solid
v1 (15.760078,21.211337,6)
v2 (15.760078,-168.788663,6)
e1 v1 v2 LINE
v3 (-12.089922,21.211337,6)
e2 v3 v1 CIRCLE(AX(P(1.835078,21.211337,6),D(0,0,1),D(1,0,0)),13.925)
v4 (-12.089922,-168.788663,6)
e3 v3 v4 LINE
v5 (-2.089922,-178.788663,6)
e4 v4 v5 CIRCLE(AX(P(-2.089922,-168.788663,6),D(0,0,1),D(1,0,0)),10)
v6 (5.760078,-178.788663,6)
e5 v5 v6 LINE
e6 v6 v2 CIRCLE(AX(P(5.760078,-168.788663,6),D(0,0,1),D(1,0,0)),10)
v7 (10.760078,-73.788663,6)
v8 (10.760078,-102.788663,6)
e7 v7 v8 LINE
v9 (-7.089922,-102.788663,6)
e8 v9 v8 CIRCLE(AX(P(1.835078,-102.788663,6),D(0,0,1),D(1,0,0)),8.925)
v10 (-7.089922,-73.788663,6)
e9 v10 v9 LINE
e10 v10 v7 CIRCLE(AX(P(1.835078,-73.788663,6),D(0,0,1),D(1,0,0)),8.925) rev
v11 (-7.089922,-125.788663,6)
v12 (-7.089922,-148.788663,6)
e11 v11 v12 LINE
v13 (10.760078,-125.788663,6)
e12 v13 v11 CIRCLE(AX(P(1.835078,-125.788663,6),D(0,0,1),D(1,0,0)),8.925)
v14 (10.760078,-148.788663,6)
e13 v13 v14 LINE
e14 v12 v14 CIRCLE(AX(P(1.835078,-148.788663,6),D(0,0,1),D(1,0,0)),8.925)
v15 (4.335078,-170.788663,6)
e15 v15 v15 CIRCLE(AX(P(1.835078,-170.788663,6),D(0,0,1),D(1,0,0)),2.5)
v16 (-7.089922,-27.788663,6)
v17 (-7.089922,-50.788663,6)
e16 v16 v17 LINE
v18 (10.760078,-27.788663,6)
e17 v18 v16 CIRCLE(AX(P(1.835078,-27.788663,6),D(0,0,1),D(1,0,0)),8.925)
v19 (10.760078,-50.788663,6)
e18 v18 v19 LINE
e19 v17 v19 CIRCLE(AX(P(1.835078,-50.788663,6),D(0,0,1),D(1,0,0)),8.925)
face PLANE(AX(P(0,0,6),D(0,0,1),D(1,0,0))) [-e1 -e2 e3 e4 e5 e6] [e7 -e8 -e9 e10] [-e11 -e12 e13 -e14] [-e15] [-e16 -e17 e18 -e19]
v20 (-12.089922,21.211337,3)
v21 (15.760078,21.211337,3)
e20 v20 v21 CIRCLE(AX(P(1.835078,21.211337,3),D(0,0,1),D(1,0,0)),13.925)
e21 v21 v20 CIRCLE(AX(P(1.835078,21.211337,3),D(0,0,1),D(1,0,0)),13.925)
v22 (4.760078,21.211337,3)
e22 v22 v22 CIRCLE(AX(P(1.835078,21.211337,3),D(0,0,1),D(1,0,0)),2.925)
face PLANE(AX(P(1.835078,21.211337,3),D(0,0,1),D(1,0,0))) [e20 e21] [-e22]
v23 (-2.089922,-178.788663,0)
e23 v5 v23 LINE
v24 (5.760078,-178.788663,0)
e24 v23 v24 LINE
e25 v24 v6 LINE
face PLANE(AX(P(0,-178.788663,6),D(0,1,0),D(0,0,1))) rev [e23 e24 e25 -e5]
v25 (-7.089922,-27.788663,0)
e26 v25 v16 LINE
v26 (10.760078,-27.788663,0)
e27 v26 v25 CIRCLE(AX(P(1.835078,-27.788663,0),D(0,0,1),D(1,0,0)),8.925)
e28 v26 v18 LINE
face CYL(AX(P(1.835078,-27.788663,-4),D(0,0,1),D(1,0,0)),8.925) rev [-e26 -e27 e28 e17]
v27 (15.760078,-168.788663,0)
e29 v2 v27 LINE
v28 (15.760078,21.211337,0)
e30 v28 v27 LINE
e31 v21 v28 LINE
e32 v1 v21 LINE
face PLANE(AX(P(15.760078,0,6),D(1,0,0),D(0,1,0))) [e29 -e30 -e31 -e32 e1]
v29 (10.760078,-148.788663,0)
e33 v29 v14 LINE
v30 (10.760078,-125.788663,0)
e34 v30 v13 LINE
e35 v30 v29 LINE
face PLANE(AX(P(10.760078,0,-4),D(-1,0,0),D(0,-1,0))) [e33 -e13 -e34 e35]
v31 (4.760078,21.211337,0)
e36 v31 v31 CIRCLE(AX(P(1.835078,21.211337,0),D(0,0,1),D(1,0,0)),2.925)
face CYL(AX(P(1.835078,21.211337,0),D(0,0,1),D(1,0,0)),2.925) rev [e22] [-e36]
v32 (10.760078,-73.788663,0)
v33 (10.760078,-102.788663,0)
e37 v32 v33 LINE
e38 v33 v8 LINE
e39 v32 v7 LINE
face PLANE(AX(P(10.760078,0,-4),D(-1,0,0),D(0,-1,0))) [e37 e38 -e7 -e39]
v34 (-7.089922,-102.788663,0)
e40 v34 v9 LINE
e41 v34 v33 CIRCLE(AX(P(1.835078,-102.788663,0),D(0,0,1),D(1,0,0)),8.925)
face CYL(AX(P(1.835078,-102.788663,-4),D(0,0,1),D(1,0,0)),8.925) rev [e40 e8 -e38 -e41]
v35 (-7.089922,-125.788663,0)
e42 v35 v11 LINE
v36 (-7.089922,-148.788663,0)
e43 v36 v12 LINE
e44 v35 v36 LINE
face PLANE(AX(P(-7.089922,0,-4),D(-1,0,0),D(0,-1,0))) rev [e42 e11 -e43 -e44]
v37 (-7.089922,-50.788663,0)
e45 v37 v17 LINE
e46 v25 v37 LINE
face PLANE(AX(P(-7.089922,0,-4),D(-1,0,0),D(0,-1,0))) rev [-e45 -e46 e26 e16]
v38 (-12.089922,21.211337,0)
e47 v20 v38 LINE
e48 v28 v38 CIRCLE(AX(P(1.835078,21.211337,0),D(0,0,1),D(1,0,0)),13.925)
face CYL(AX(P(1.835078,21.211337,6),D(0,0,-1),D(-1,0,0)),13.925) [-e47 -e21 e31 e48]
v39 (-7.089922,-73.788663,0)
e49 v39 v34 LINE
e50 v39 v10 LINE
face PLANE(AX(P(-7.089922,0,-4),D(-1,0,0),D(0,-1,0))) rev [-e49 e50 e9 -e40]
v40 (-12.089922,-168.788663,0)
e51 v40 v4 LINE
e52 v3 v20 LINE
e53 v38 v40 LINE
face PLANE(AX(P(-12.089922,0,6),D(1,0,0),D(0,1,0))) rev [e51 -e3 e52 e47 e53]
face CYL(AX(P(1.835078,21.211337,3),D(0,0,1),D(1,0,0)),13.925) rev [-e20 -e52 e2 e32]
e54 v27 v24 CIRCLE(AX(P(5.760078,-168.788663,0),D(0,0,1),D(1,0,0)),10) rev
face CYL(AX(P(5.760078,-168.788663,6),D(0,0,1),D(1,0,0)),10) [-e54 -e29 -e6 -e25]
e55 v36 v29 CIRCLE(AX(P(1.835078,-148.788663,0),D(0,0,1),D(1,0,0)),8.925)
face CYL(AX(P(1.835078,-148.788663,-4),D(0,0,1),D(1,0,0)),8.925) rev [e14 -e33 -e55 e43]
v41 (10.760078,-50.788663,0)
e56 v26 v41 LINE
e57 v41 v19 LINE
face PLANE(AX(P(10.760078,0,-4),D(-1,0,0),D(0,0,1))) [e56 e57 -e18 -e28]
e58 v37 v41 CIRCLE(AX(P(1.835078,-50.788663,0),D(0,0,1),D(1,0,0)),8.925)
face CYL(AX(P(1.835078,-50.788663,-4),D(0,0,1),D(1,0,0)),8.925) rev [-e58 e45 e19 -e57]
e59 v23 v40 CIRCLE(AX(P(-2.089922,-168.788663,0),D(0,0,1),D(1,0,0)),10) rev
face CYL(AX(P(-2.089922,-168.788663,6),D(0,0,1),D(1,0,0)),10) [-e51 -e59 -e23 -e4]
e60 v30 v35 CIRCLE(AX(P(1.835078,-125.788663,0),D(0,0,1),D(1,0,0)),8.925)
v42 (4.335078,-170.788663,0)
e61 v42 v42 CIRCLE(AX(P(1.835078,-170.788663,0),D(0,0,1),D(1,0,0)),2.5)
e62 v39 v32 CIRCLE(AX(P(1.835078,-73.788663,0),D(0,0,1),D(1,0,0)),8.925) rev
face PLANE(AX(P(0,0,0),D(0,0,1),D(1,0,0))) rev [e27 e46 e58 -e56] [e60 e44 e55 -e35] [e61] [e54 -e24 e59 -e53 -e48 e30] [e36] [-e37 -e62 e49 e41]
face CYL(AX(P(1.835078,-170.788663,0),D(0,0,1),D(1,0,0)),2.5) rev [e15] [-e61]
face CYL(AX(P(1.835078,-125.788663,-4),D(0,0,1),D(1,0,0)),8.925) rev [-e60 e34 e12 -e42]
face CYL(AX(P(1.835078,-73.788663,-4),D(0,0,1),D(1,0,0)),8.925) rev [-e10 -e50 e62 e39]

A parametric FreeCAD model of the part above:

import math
import FreeCAD as App
import Part
import Sketcher


def edges_at(feature, points):
    """Names of the edges that pass closest to the given points."""
    edges = feature.Shape.Edges
    near = lambda p: min(range(len(edges)), key=lambda i: edges[i].distToShape(Part.Vertex(*p))[0])
    return sorted({f"Edge{near(p) + 1}" for p in points})

doc = App.newDocument("Part")
params = doc.addObject("Spreadsheet::Sheet", "Params")
for row, (alias, value) in enumerate([
    ("sketch1_height", "200 mm"),
    ("pad1_length", "6 mm"),
    ("sketch2_diameter", "5 mm"),
    ("pocket1_length", "6 mm"),
    ("sketch3_diameter", "27.85 mm"),
    ("pocket2_length", "3 mm"),
    ("sketch4_diameter", "5.85 mm"),
    ("pocket3_length", "3 mm"),
    ("sketch5_height", "23 mm"),
    ("sketch5_height2", "29 mm"),
    ("pocket4_length", "10 mm"),
    ("fillet_radius", "10 mm"),
    ("fillet2_radius", "10 mm"),
], start=1):
    params.set(f"A{row}", alias)
    params.set(f"B{row}", "=" + value)
    params.setAlias(f"B{row}", alias)

body = doc.addObject("PartDesign::Body", "Body")

# Sketch on XY plane
sketch1 = body.newObject("Sketcher::SketchObject", "Sketch")
sketch1.AttachmentSupport = (doc.getObject("XY_Plane"), [""])
sketch1.MapMode = "FlatFace"
sketch1.addGeometry(Part.LineSegment(App.Vector(-12, 21, 0), App.Vector(-12, -179, 0)), False)
sketch1.addGeometry(Part.LineSegment(App.Vector(-12, -179, 0), App.Vector(16, -179, 0)), False)
sketch1.addGeometry(Part.LineSegment(App.Vector(16, -179, 0), App.Vector(16, 21, 0)), False)
sketch1.addGeometry(Part.ArcOfCircle(Part.Circle(App.Vector(2, 21, 0), App.Vector(0, 0, 1), 14), math.radians(0), math.radians(180)), False)
sketch1.addConstraint(Sketcher.Constraint("Coincident", 0, 2, 1, 1))
sketch1.addConstraint(Sketcher.Constraint("Coincident", 1, 2, 2, 1))
sketch1.addConstraint(Sketcher.Constraint("Tangent", 2, 2, 3, 1))
sketch1.addConstraint(Sketcher.Constraint("Tangent", 3, 2, 0, 1))
sketch1.addConstraint(Sketcher.Constraint("Vertical", 0))
sketch1.addConstraint(Sketcher.Constraint("Horizontal", 1))
sketch1.addConstraint(Sketcher.Constraint("Vertical", 2))
sketch1.addConstraint(Sketcher.Constraint("DistanceY", 0, 2, 0, 1, 200.0))
sketch1.addConstraint(Sketcher.Constraint("Radius", 3, 13.925))
sketch1.addConstraint(Sketcher.Constraint("DistanceX", -1, 1, 3, 3, 1.835078))
sketch1.addConstraint(Sketcher.Constraint("DistanceY", -1, 1, 3, 3, 21.211337))
sketch1.setExpression("Constraints[7]", "Params.sketch1_height")
pad1 = body.newObject("PartDesign::Pad", "Pad")
pad1.Profile = sketch1
pad1.setExpression("Length", "Params.pad1_length")

# Sketch on XY plane
sketch2 = body.newObject("Sketcher::SketchObject", "Sketch001")
sketch2.AttachmentSupport = (doc.getObject("XY_Plane"), [""])
sketch2.MapMode = "FlatFace"
sketch2.AttachmentOffset = App.Placement(App.Vector(0, 0, 6), App.Rotation())
sketch2.addGeometry(Part.Circle(App.Vector(1.8, -170.8, 0), App.Vector(0, 0, 1), 2.5), False)
sketch2.addConstraint(Sketcher.Constraint("Diameter", 0, 5.0))
sketch2.addConstraint(Sketcher.Constraint("DistanceX", -1, 1, 0, 3, 1.835078))
sketch2.addConstraint(Sketcher.Constraint("DistanceY", 0, 3, -1, 1, 170.788663))
sketch2.setExpression("Constraints[0]", "Params.sketch2_diameter")
pocket1 = body.newObject("PartDesign::Pocket", "Pocket")
pocket1.Profile = sketch2
pocket1.setExpression("Length", "Params.pocket1_length")

# Sketch on XY plane
sketch3 = body.newObject("Sketcher::SketchObject", "Sketch002")
sketch3.AttachmentSupport = (doc.getObject("XY_Plane"), [""])
sketch3.MapMode = "FlatFace"
sketch3.AttachmentOffset = App.Placement(App.Vector(0, 0, 6), App.Rotation())
sketch3.addGeometry(Part.Circle(App.Vector(2, 21, 0), App.Vector(0, 0, 1), 14), False)
sketch3.addConstraint(Sketcher.Constraint("Diameter", 0, 27.85))
sketch3.addConstraint(Sketcher.Constraint("DistanceX", -1, 1, 0, 3, 1.835078))
sketch3.addConstraint(Sketcher.Constraint("DistanceY", -1, 1, 0, 3, 21.211337))
sketch3.setExpression("Constraints[0]", "Params.sketch3_diameter")
pocket2 = body.newObject("PartDesign::Pocket", "Pocket001")
pocket2.Profile = sketch3
pocket2.setExpression("Length", "Params.pocket2_length")

# Sketch on XY plane
sketch4 = body.newObject("Sketcher::SketchObject", "Sketch003")
sketch4.AttachmentSupport = (doc.getObject("XY_Plane"), [""])
sketch4.MapMode = "FlatFace"
sketch4.AttachmentOffset = App.Placement(App.Vector(0, 0, 3), App.Rotation())
sketch4.addGeometry(Part.Circle(App.Vector(1.8, 21.2, 0), App.Vector(0, 0, 1), 2.9), False)
sketch4.addConstraint(Sketcher.Constraint("Diameter", 0, 5.85))
sketch4.addConstraint(Sketcher.Constraint("DistanceX", -1, 1, 0, 3, 1.835078))
sketch4.addConstraint(Sketcher.Constraint("DistanceY", -1, 1, 0, 3, 21.211337))
sketch4.setExpression("Constraints[0]", "Params.sketch4_diameter")
pocket3 = body.newObject("PartDesign::Pocket", "Pocket002")
pocket3.Profile = sketch4
pocket3.setExpression("Length", "Params.pocket3_length")

# Sketch on XY plane
sketch5 = body.newObject("Sketcher::SketchObject", "Sketch004")
sketch5.AttachmentSupport = (doc.getObject("XY_Plane"), [""])
sketch5.MapMode = "FlatFace"
sketch5.AttachmentOffset = App.Placement(App.Vector(0, 0, 6), App.Rotation())
sketch5.addGeometry(Part.ArcOfCircle(Part.Circle(App.Vector(2, -28, 0), App.Vector(0, 0, 1), 9), math.radians(0), math.radians(180)), False)
sketch5.addGeometry(Part.LineSegment(App.Vector(-7, -28, 0), App.Vector(-7, -51, 0)), False)
sketch5.addGeometry(Part.ArcOfCircle(Part.Circle(App.Vector(2, -51, 0), App.Vector(0, 0, 1), 9), math.radians(180), math.radians(360)), False)
sketch5.addGeometry(Part.LineSegment(App.Vector(11, -51, 0), App.Vector(11, -28, 0)), False)
sketch5.addGeometry(Part.ArcOfCircle(Part.Circle(App.Vector(2, -74, 0), App.Vector(0, 0, 1), 9), math.radians(0), math.radians(180)), False)
sketch5.addGeometry(Part.LineSegment(App.Vector(-7, -74, 0), App.Vector(-7, -103, 0)), False)
sketch5.addGeometry(Part.ArcOfCircle(Part.Circle(App.Vector(2, -103, 0), App.Vector(0, 0, 1), 9), math.radians(180), math.radians(360)), False)
sketch5.addGeometry(Part.LineSegment(App.Vector(11, -103, 0), App.Vector(11, -74, 0)), False)
sketch5.addGeometry(Part.ArcOfCircle(Part.Circle(App.Vector(2, -126, 0), App.Vector(0, 0, 1), 9), math.radians(0), math.radians(180)), False)
sketch5.addGeometry(Part.LineSegment(App.Vector(-7, -126, 0), App.Vector(-7, -149, 0)), False)
sketch5.addGeometry(Part.ArcOfCircle(Part.Circle(App.Vector(2, -149, 0), App.Vector(0, 0, 1), 9), math.radians(180), math.radians(360)), False)
sketch5.addGeometry(Part.LineSegment(App.Vector(11, -149, 0), App.Vector(11, -126, 0)), False)
sketch5.addConstraint(Sketcher.Constraint("Tangent", 0, 2, 1, 1))
sketch5.addConstraint(Sketcher.Constraint("Tangent", 1, 2, 2, 1))
sketch5.addConstraint(Sketcher.Constraint("Tangent", 2, 2, 3, 1))
sketch5.addConstraint(Sketcher.Constraint("Tangent", 3, 2, 0, 1))
sketch5.addConstraint(Sketcher.Constraint("Tangent", 4, 2, 5, 1))
sketch5.addConstraint(Sketcher.Constraint("Tangent", 5, 2, 6, 1))
sketch5.addConstraint(Sketcher.Constraint("Tangent", 6, 2, 7, 1))
sketch5.addConstraint(Sketcher.Constraint("Tangent", 7, 2, 4, 1))
sketch5.addConstraint(Sketcher.Constraint("Tangent", 8, 2, 9, 1))
sketch5.addConstraint(Sketcher.Constraint("Tangent", 9, 2, 10, 1))
sketch5.addConstraint(Sketcher.Constraint("Tangent", 10, 2, 11, 1))
sketch5.addConstraint(Sketcher.Constraint("Tangent", 11, 2, 8, 1))
sketch5.addConstraint(Sketcher.Constraint("Vertical", 1))
sketch5.addConstraint(Sketcher.Constraint("Vertical", 3))
sketch5.addConstraint(Sketcher.Constraint("Vertical", 5))
sketch5.addConstraint(Sketcher.Constraint("Vertical", 7))
sketch5.addConstraint(Sketcher.Constraint("Vertical", 9))
sketch5.addConstraint(Sketcher.Constraint("Vertical", 11))
sketch5.addConstraint(Sketcher.Constraint("Equal", 2, 4))
sketch5.addConstraint(Sketcher.Constraint("Equal", 6, 8))
sketch5.addConstraint(Sketcher.Constraint("Vertical", 2, 3, 4, 3))
sketch5.addConstraint(Sketcher.Constraint("Vertical", 6, 3, 8, 3))
sketch5.addConstraint(Sketcher.Constraint("Equal", 3, 9))
sketch5.addConstraint(Sketcher.Constraint("DistanceY", 1, 2, 1, 1, 23.0))
sketch5.addConstraint(Sketcher.Constraint("DistanceY", 5, 2, 5, 1, 29.0))
sketch5.addConstraint(Sketcher.Constraint("Radius", 0, 8.925))
sketch5.addConstraint(Sketcher.Constraint("DistanceY", 4, 3, 2, 3, 23.0))
sketch5.addConstraint(Sketcher.Constraint("DistanceY", 8, 3, 6, 3, 23.0))
sketch5.addConstraint(Sketcher.Constraint("DistanceX", -1, 1, 0, 3, 1.835078))
sketch5.addConstraint(Sketcher.Constraint("DistanceY", 0, 3, -1, 1, 27.788663))
sketch5.setExpression("Constraints[23]", "Params.sketch5_height")
sketch5.setExpression("Constraints[24]", "Params.sketch5_height2")
pocket4 = body.newObject("PartDesign::Pocket", "Pocket003")
pocket4.Profile = sketch5
pocket4.setExpression("Length", "Params.pocket4_length")
doc.recompute()

fillet = body.newObject("PartDesign::Fillet", "Fillet")
fillet.Base = (pocket4, edges_at(pocket4, [(-12.09, -178.789, 3)]))
fillet.setExpression("Radius", "Params.fillet_radius")
doc.recompute()

fillet2 = body.newObject("PartDesign::Fillet", "Fillet001")
fillet2.Base = (fillet, edges_at(fillet, [(15.76, -178.789, 3)]))
fillet2.setExpression("Radius", "Params.fillet2_radius")

doc.recompute()
